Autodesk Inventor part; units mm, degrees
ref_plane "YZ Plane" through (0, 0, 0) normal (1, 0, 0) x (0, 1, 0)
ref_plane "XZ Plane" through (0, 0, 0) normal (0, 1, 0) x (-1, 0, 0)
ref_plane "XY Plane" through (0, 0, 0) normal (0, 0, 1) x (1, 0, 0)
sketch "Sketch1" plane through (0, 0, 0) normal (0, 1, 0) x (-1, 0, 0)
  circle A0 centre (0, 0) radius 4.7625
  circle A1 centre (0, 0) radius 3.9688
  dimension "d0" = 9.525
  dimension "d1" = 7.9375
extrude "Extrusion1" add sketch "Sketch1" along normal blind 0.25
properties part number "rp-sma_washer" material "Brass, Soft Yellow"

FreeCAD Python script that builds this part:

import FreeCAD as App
import Part
import Sketcher
Q = App.Units.Quantity

doc = App.newDocument("Part")
body = doc.addObject("PartDesign::Body", "Body")

# Sketch on XZ plane
sketch1 = body.newObject("Sketcher::SketchObject", "Sketch")
sketch1.AttachmentSupport = (doc.getObject("XZ_Plane"), [""])
sketch1.MapMode = "FlatFace"
sketch1.addGeometry([
    Part.Circle(App.Vector(0, 0, 0), App.Vector(0, 0, 1), 4.7625),
    Part.Circle(App.Vector(0, 0, 0), App.Vector(0, 0, 1), 3.9688),
], False)
sketch1.addConstraint([
    Sketcher.Constraint("Coincident", 0, 3, -1, 1),
    Sketcher.Constraint("Coincident", 1, 3, -1, 1),
    Sketcher.Constraint("Diameter", 0, Q("0.375 in")),
    Sketcher.Constraint("Diameter", 1, Q("0.3125 in")),
])
pad1 = body.newObject("PartDesign::Pad", "Pad")
pad1.Profile = sketch1
pad1.Length = 0.25
pad1.Reversed = True

doc.recompute()
